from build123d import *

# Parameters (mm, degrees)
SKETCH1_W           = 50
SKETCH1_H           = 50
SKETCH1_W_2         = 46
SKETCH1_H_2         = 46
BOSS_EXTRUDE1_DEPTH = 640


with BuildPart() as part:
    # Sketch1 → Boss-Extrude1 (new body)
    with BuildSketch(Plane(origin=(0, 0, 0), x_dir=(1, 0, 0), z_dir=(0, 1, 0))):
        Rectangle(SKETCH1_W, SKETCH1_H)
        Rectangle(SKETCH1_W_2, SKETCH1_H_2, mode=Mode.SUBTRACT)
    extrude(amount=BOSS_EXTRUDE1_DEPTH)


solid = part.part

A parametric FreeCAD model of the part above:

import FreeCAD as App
import Part
import Sketcher
from FreeCAD import Vector
Q = App.Units.Quantity

doc = App.newDocument("Part")
body = doc.addObject("PartDesign::Body", "Body")

# Sketch on XZ plane
sketch1 = body.newObject("Sketcher::SketchObject", "Sketch")
sketch1.AttachmentSupport = (doc.getObject("XZ_Plane"), [""])
sketch1.MapMode = "FlatFace"
sketch1.addGeometry([
    Part.LineSegment(Vector(-25, -25, 0), Vector(-25, 25, 0)),  # 0
    Part.LineSegment(Vector(-25, 25, 0), Vector(25, 25, 0)),  # 1
    Part.LineSegment(Vector(25, 25, 0), Vector(25, -25, 0)),  # 2
    Part.LineSegment(Vector(25, -25, 0), Vector(-25, -25, 0)),  # 3
    Part.LineSegment(Vector(23, 23, 0), Vector(-23, 23, 0)),  # 4
    Part.LineSegment(Vector(-23, 23, 0), Vector(-23, -23, 0)),  # 5
    Part.LineSegment(Vector(-23, -23, 0), Vector(23, -23, 0)),  # 6
    Part.LineSegment(Vector(23, -23, 0), Vector(23, 23, 0)),  # 7
], False)
sketch1.addConstraint([
    Sketcher.Constraint("Coincident", 0, 2, 1, 1),
    Sketcher.Constraint("Coincident", 1, 2, 2, 1),
    Sketcher.Constraint("Coincident", 2, 2, 3, 1),
    Sketcher.Constraint("Coincident", 3, 2, 0, 1),
    Sketcher.Constraint("Coincident", 4, 2, 5, 1),
    Sketcher.Constraint("Coincident", 5, 2, 6, 1),
    Sketcher.Constraint("Coincident", 6, 2, 7, 1),
    Sketcher.Constraint("Coincident", 7, 2, 4, 1),
    Sketcher.Constraint("Vertical", 0),
    Sketcher.Constraint("Horizontal", 1),
    Sketcher.Constraint("Vertical", 2),
    Sketcher.Constraint("Horizontal", 3),
    Sketcher.Constraint("Horizontal", 4),
    Sketcher.Constraint("Vertical", 5),
    Sketcher.Constraint("Horizontal", 6),
    Sketcher.Constraint("Vertical", 7),
    Sketcher.Constraint("Symmetric", 0, 2, 2, 2, -1, 1),
    Sketcher.Constraint("Symmetric", 4, 2, 6, 2, -1, 1),
    Sketcher.Constraint("Equal", 3, 0),
    Sketcher.Constraint("Equal", 6, 5),
    Sketcher.Constraint("DistanceX", 1, 1, 1, 2, Q("50 mm")),
    Sketcher.Constraint("DistanceX", 4, 2, 4, 1, Q("46 mm")),
])
pad1 = body.newObject("PartDesign::Pad", "Pad")
pad1.Profile = sketch1
pad1.Length = 640
pad1.Reversed = True

doc.recompute()
